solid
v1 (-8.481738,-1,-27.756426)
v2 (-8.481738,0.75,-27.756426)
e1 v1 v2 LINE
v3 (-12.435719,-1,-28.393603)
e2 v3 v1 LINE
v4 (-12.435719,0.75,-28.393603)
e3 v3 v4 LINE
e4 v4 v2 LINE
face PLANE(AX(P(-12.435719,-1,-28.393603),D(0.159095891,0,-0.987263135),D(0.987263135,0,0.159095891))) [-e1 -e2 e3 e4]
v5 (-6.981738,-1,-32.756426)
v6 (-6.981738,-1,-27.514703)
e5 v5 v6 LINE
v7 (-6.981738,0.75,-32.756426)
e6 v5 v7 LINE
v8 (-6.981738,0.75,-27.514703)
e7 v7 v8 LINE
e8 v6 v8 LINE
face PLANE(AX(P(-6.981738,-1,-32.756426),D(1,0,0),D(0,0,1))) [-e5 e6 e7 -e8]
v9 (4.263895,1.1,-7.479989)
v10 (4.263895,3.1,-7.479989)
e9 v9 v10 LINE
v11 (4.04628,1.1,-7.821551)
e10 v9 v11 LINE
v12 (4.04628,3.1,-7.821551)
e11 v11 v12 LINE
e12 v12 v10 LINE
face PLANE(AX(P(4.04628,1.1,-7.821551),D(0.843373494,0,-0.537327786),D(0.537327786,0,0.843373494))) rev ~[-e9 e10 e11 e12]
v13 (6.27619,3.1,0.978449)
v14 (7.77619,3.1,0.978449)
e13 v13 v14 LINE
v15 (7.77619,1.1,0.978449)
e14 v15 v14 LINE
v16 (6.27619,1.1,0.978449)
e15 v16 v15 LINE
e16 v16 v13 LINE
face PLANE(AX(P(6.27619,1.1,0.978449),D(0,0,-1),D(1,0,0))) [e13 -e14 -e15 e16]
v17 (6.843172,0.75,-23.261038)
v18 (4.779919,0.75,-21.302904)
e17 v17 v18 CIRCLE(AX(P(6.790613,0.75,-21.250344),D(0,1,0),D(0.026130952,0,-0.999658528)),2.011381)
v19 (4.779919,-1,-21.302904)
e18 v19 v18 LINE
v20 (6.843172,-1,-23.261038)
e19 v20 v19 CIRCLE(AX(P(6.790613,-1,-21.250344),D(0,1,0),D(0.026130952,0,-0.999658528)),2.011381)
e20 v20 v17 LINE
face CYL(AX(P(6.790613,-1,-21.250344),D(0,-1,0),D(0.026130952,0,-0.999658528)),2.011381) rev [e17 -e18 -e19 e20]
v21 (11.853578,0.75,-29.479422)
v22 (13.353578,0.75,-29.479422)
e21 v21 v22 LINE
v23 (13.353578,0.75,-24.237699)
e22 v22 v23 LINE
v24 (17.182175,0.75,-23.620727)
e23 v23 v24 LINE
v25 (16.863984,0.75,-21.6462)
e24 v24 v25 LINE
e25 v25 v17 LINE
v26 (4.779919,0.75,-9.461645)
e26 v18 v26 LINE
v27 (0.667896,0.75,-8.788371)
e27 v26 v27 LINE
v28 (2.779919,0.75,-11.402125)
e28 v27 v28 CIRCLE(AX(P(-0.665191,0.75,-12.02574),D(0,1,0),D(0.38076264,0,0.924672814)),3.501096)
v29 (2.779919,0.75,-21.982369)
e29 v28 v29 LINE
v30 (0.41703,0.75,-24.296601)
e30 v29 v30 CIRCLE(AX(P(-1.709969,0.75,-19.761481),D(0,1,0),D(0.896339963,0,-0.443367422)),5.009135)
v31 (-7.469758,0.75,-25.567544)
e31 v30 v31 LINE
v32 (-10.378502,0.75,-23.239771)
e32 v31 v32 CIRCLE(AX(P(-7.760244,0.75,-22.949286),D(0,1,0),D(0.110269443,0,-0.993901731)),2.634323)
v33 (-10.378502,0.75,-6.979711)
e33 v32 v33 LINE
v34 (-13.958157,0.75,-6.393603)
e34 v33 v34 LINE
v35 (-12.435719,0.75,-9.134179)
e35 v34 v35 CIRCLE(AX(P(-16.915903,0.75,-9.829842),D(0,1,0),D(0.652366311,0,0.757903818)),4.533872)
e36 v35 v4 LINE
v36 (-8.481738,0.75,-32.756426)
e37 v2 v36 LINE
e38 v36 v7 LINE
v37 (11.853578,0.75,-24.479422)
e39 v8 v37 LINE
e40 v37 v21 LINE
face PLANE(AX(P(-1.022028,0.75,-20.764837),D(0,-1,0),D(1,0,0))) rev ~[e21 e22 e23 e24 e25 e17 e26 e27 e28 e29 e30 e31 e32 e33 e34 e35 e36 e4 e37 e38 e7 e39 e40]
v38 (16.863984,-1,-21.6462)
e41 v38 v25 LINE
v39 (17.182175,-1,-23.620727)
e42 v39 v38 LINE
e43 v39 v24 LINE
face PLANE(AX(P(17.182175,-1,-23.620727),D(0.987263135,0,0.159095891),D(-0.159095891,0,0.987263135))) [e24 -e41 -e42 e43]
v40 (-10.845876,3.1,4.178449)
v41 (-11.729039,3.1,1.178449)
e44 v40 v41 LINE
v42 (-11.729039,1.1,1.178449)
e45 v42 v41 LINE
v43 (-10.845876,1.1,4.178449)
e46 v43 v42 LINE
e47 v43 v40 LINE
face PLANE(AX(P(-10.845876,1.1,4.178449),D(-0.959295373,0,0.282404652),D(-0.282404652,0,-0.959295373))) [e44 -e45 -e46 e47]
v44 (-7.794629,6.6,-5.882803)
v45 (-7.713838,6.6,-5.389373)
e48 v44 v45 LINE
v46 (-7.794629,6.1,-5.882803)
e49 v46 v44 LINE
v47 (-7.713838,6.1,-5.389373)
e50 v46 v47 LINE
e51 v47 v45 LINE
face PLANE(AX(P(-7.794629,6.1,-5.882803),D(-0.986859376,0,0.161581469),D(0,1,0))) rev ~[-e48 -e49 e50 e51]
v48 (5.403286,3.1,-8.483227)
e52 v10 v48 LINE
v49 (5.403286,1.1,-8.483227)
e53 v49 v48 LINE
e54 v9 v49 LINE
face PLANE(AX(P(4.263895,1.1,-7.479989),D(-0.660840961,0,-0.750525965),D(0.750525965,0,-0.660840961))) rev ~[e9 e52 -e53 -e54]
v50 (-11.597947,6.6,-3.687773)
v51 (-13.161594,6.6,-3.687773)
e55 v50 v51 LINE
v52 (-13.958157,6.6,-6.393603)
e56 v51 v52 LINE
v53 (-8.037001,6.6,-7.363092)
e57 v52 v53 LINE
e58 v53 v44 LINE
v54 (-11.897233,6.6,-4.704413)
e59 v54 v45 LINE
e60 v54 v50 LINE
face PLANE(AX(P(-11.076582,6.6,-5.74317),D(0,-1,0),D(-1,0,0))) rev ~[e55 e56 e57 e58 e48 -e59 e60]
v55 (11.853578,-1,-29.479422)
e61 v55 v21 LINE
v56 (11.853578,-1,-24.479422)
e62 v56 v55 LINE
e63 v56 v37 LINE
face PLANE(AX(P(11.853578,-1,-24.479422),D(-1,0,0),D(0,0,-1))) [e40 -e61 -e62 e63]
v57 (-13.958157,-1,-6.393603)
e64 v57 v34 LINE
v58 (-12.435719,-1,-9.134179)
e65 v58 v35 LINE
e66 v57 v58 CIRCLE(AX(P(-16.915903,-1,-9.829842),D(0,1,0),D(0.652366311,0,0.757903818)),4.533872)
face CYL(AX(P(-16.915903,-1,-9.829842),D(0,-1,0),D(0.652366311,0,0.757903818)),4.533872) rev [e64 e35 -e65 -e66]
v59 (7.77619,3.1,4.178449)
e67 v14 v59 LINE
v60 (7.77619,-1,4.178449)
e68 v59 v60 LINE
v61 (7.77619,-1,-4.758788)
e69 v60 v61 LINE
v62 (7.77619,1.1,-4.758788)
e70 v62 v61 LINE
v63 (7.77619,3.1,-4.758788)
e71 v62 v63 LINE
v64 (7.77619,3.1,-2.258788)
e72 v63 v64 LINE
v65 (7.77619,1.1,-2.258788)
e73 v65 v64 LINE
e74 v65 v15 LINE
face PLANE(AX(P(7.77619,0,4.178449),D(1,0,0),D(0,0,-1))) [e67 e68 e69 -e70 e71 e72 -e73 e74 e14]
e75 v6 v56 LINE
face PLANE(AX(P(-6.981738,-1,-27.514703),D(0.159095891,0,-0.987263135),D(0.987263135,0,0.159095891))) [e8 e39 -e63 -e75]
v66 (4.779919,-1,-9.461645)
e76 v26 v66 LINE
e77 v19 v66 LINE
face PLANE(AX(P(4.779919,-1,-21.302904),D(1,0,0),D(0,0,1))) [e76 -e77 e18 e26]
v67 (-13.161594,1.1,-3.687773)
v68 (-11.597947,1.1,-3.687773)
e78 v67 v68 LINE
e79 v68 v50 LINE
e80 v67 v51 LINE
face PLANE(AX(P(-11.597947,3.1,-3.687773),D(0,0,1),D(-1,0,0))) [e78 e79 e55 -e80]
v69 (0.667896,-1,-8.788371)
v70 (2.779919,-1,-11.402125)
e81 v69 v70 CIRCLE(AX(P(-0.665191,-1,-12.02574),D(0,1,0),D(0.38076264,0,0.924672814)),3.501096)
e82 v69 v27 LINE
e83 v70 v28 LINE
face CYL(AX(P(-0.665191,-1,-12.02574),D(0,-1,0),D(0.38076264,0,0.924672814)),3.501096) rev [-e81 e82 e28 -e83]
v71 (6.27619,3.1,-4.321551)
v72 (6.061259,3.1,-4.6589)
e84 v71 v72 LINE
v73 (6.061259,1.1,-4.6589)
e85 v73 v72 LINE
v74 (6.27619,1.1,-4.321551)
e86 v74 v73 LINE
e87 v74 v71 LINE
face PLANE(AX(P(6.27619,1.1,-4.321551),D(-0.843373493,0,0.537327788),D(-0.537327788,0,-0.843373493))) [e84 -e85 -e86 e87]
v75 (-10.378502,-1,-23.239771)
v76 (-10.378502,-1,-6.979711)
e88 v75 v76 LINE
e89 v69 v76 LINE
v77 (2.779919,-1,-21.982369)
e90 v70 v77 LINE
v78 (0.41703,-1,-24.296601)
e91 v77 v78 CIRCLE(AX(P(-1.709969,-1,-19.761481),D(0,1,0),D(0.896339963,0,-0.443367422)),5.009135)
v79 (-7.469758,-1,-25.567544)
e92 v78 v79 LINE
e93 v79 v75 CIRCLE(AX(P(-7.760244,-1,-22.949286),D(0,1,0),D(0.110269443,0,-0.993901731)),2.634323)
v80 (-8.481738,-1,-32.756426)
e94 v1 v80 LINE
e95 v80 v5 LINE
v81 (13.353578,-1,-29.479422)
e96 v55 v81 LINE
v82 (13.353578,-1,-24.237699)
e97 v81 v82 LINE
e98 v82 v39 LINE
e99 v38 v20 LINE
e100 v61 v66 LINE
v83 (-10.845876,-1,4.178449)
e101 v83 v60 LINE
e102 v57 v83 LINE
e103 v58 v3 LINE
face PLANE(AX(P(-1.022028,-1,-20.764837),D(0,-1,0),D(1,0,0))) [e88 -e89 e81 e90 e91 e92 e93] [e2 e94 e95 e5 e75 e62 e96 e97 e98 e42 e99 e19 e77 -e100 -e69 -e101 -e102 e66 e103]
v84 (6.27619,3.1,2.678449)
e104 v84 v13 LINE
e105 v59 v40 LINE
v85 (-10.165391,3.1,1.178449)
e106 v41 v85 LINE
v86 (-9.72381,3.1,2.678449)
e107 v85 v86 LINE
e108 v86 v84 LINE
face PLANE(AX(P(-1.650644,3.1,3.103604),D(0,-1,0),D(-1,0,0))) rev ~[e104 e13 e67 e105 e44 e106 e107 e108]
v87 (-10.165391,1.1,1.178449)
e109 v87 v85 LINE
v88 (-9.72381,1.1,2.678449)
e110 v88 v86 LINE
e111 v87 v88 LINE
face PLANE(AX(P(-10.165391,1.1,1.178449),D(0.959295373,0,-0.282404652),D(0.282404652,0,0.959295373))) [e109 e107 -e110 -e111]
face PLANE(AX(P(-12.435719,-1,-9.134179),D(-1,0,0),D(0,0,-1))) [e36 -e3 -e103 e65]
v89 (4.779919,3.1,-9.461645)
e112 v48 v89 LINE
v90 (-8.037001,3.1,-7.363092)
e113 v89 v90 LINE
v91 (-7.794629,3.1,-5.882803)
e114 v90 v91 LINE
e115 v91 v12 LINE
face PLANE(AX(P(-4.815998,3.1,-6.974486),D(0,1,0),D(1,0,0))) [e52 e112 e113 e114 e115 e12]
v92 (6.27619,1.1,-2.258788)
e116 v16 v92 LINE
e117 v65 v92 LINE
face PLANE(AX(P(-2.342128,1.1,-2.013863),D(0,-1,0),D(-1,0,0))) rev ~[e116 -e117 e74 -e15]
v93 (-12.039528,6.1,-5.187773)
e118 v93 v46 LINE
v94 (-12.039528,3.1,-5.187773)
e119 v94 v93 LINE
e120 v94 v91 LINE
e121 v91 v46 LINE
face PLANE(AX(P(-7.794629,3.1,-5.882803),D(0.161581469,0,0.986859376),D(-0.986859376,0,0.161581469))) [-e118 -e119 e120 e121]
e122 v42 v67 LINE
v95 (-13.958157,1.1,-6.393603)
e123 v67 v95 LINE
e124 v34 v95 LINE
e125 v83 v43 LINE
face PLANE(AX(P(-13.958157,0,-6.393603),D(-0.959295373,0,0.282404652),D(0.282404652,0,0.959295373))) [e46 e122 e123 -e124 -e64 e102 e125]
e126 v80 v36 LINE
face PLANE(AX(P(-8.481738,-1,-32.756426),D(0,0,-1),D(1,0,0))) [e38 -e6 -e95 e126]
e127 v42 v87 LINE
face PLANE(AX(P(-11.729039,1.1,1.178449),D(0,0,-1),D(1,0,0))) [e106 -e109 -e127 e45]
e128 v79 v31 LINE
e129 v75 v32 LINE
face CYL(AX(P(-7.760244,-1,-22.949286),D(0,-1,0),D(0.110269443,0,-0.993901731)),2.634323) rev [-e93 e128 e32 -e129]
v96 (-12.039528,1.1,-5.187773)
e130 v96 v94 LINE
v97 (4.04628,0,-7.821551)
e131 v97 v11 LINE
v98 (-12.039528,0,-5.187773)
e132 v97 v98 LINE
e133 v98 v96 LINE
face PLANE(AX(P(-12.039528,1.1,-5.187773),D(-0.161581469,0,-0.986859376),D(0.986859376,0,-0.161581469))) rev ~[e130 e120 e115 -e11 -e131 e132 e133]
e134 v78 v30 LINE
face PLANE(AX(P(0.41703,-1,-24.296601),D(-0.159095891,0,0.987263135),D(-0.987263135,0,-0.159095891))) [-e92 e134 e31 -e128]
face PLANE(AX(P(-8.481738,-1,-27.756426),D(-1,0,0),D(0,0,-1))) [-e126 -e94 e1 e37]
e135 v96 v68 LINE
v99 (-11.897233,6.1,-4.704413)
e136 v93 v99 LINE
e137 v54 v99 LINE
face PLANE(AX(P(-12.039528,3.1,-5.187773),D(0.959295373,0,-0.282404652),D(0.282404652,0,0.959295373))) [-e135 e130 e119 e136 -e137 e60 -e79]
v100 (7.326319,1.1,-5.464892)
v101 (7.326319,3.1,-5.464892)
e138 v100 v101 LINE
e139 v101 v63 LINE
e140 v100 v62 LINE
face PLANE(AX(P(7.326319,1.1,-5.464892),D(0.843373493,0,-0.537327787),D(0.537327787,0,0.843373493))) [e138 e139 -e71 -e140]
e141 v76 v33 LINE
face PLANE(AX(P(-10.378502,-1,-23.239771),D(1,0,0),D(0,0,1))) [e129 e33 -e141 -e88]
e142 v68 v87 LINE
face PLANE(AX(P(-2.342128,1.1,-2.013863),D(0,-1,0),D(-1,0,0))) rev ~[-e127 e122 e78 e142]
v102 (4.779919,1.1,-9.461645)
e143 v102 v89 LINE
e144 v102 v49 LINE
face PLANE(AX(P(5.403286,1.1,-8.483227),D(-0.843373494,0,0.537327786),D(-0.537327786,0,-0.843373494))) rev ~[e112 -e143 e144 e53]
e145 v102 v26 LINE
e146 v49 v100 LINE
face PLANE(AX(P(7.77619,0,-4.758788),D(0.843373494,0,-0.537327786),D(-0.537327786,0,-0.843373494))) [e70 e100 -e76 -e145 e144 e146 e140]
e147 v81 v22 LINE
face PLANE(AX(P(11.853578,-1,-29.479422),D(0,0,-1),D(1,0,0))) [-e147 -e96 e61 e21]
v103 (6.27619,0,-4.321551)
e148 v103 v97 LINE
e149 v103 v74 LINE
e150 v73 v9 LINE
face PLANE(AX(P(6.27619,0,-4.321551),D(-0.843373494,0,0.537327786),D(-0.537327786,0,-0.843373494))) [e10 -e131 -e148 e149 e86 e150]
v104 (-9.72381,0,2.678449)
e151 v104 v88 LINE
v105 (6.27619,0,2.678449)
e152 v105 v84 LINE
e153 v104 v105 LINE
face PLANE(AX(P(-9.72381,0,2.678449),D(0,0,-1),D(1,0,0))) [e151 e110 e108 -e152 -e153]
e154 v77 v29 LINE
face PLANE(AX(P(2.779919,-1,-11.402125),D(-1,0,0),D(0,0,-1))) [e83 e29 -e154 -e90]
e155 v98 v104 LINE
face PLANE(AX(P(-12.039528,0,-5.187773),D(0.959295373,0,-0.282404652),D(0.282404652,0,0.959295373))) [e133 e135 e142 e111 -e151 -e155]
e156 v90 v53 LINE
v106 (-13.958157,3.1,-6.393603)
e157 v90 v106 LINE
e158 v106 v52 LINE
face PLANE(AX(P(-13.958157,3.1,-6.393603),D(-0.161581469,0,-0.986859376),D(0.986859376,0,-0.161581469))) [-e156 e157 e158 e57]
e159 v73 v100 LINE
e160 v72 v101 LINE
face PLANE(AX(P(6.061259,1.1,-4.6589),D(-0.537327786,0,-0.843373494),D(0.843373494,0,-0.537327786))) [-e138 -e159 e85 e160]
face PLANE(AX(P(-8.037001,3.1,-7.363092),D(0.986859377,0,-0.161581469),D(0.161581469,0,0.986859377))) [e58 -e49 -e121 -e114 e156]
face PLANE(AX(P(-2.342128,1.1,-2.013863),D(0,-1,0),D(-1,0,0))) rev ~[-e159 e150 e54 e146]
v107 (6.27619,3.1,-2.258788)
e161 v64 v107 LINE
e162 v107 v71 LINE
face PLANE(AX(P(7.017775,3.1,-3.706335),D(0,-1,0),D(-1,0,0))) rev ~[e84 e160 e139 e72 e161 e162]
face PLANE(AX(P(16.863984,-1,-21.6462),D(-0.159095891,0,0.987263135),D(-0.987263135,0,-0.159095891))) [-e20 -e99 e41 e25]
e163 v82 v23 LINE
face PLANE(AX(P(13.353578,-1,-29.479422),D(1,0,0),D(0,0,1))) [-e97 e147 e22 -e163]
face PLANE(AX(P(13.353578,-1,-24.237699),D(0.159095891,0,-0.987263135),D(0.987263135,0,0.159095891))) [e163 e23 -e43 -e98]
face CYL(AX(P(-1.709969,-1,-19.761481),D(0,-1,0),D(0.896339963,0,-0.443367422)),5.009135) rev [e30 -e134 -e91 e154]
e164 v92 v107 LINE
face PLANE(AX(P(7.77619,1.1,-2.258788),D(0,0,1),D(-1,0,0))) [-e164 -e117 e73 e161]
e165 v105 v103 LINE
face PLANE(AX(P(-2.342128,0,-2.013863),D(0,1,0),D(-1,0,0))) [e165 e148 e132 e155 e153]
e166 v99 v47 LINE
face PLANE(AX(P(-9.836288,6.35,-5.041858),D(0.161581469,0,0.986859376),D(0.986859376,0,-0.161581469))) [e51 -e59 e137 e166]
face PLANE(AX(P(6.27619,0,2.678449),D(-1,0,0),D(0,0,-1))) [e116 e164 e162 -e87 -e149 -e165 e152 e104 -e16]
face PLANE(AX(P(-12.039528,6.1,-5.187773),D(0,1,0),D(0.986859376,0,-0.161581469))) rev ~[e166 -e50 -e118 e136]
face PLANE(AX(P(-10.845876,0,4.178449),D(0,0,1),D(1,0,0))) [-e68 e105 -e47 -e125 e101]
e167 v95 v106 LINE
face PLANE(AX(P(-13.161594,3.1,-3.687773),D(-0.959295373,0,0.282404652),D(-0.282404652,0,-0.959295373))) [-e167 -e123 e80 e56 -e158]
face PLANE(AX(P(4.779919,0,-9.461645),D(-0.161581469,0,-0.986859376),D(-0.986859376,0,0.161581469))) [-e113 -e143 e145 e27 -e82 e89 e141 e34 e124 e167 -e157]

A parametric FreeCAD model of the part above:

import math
import FreeCAD as App
import Part
import Sketcher
Q = App.Units.Quantity

doc = App.newDocument("Part")
params = doc.addObject("Spreadsheet::Sheet", "Params")
for row, (alias, value) in enumerate([
    ("sketch1_width", "16 mm"),
    ("sketch1_height", "7 mm"),
    ("sketch1_length", "16.3 mm"),
    ("sketch1_length2", "8.2 mm"),
    ("sketch1_length3", "4.15 mm"),
    ("pad1_length", "1.1 mm"),
    ("sketch2_width", "16 mm"),
    ("sketch2_width2", "1.5 mm"),
    ("sketch2_width3", "1.5 mm"),
    ("sketch2_height", "1.7 mm"),
    ("sketch2_height2", "3.2 mm"),
    ("pad2_length", "2 mm"),
    ("pad3_length", "1 mm"),
    ("sketch4_length", "6 mm"),
    ("sketch4_length2", "1.5 mm"),
    ("pad4_length", "3.5 mm"),
    ("sketch5_height", "0.5 mm"),
    ("pad5_length", "0.5 mm"),
    ("sketch6_height", "5 mm"),
    ("sketch6_length", "2 mm"),
    ("sketch6_width", "1.5 mm"),
    ("pad6_length", "1.75 mm"),
], start=1):
    params.set(f"A{row}", alias)
    params.set(f"B{row}", "=" + value)
    params.setAlias(f"B{row}", alias)

body = doc.addObject("PartDesign::Body", "Body")

# Sketch on XZ plane
sketch1 = doc.addObject("Sketcher::SketchObject", "Sketch")
body.addObject(sketch1)
sketch1.AttachmentSupport = (doc.XZ_Plane, [""])
sketch1.MapMode = "FlatFace"
sketch1.addGeometry(Part.LineSegment(App.Vector(4.8, -9.5, 0), App.Vector(-14, -6.4, 0)), False)
sketch1.addGeometry(Part.LineSegment(App.Vector(-14, -6.4, 0), App.Vector(-10.8, 4.2, 0)), False)
sketch1.addGeometry(Part.LineSegment(App.Vector(-10.8, 4.2, 0), App.Vector(7.8, 4.2, 0)), False)
sketch1.addGeometry(Part.LineSegment(App.Vector(7.8, 4.2, 0), App.Vector(7.8, -4.8, 0)), False)
sketch1.addGeometry(Part.LineSegment(App.Vector(7.8, -4.8, 0), App.Vector(4.8, -9.5, 0)), False)
sketch1.addGeometry(Part.LineSegment(App.Vector(-12, -5.2, 0), App.Vector(4, -7.8, 0)), False)
sketch1.addGeometry(Part.LineSegment(App.Vector(4, -7.8, 0), App.Vector(6.3, -4.3, 0)), False)
sketch1.addGeometry(Part.LineSegment(App.Vector(6.3, -4.3, 0), App.Vector(6.3, 2.7, 0)), False)
sketch1.addGeometry(Part.LineSegment(App.Vector(6.3, 2.7, 0), App.Vector(-9.7, 2.7, 0)), False)
sketch1.addGeometry(Part.LineSegment(App.Vector(-9.7, 2.7, 0), App.Vector(-12, -5.2, 0)), False)
sketch1.addConstraint(Sketcher.Constraint("Coincident", 0, 2, 1, 1))
sketch1.addConstraint(Sketcher.Constraint("Coincident", 1, 2, 2, 1))
sketch1.addConstraint(Sketcher.Constraint("Coincident", 2, 2, 3, 1))
sketch1.addConstraint(Sketcher.Constraint("Coincident", 3, 2, 4, 1))
sketch1.addConstraint(Sketcher.Constraint("Coincident", 4, 2, 0, 1))
sketch1.addConstraint(Sketcher.Constraint("Coincident", 5, 2, 6, 1))
sketch1.addConstraint(Sketcher.Constraint("Coincident", 6, 2, 7, 1))
sketch1.addConstraint(Sketcher.Constraint("Coincident", 7, 2, 8, 1))
sketch1.addConstraint(Sketcher.Constraint("Coincident", 8, 2, 9, 1))
sketch1.addConstraint(Sketcher.Constraint("Coincident", 9, 2, 5, 1))
sketch1.addConstraint(Sketcher.Constraint("Horizontal", 2))
sketch1.addConstraint(Sketcher.Constraint("Vertical", 3))
sketch1.addConstraint(Sketcher.Constraint("Vertical", 7))
sketch1.addConstraint(Sketcher.Constraint("Horizontal", 8))
sketch1.addConstraint(Sketcher.Constraint("Parallel", 0, 5))
sketch1.addConstraint(Sketcher.Constraint("Parallel", 4, 6))
sketch1.addConstraint(Sketcher.Constraint("Parallel", 1, 9))
sketch1.addConstraint(Sketcher.Constraint("DistanceX", 8, 2, 8, 1, Q("16 mm")))
sketch1.addConstraint(Sketcher.Constraint("DistanceY", 7, 1, 7, 2, Q("7 mm")))
sketch1.addConstraint(Sketcher.Constraint("DistanceY", 5, 2, 2, 2, Q("12 mm")))
sketch1.addConstraint(Sketcher.Constraint("Distance", 5, Q("16.3 mm")))
sketch1.addConstraint(Sketcher.Constraint("Distance", 9, Q("8.2 mm")))
sketch1.addConstraint(Sketcher.Constraint("DistanceX", 6, 2, 3, 2, Q("1.5 mm")))
sketch1.addConstraint(Sketcher.Constraint("DistanceY", 5, 2, 6, 2, Q("3.5 mm")))
sketch1.addConstraint(Sketcher.Constraint("Distance", 6, Q("4.15 mm")))
sketch1.addConstraint(Sketcher.Constraint("DistanceX", 2, 1, 2, 2, Q("18.622066 mm")))
sketch1.addConstraint(Sketcher.Constraint("DistanceY", 3, 2, 3, 1, Q("8.937237 mm")))
sketch1.addConstraint(Sketcher.Constraint("DistanceY", -1, 1, 1, 2, Q("4.178449 mm")))
sketch1.addConstraint(Sketcher.Constraint("DistanceX", -1, 1, 2, 2, Q("7.77619 mm")))
sketch1.addConstraint(Sketcher.Constraint("DistanceX", -1, 1, 4, 2, Q("4.779919 mm")))
sketch1.setExpression("Constraints[17]", "Params.sketch1_width")
sketch1.setExpression("Constraints[18]", "Params.sketch1_height")
sketch1.setExpression("Constraints[20]", "Params.sketch1_length")
sketch1.setExpression("Constraints[21]", "Params.sketch1_length2")
sketch1.setExpression("Constraints[24]", "Params.sketch1_length3")
pad1 = doc.addObject("PartDesign::Pad", "Pad")
body.addObject(pad1)
pad1.Profile = sketch1
pad1.setExpression("Length", "Params.pad1_length")
pad1.Reversed = True

# Sketch on XZ plane
sketch2 = doc.addObject("Sketcher::SketchObject", "Sketch001")
body.addObject(sketch2)
sketch2.AttachmentSupport = (doc.XZ_Plane, [""])
sketch2.MapMode = "FlatFace"
sketch2.AttachmentOffset = App.Placement(App.Vector(0, 0, -1.1), App.Rotation())
sketch2.addGeometry(Part.LineSegment(App.Vector(4.263895, -7.479989, 0), App.Vector(5.403286, -8.483227, 0)), False)
sketch2.addGeometry(Part.LineSegment(App.Vector(5.403286, -8.483227, 0), App.Vector(4.779919, -9.461645, 0)), False)
sketch2.addGeometry(Part.LineSegment(App.Vector(4.779919, -9.461645, 0), App.Vector(-13.958157, -6.393603, 0)), False)
sketch2.addGeometry(Part.LineSegment(App.Vector(-13.958157, -6.393603, 0), App.Vector(-13.161594, -3.687773, 0)), False)
sketch2.addGeometry(Part.LineSegment(App.Vector(-13.161594, -3.687773, 0), App.Vector(-11.597947, -3.687773, 0)), False)
sketch2.addGeometry(Part.LineSegment(App.Vector(-11.597947, -3.687773, 0), App.Vector(-12.039528, -5.187773, 0)), False)
sketch2.addGeometry(Part.LineSegment(App.Vector(-12.039528, -5.187773, 0), App.Vector(4.04628, -7.821551, 0)), False)
sketch2.addGeometry(Part.LineSegment(App.Vector(4.04628, -7.821551, 0), App.Vector(4.263895, -7.479989, 0)), False)
sketch2.addGeometry(Part.LineSegment(App.Vector(7.77619, 0.978449, 0), App.Vector(6.27619, 0.978449, 0)), False)
sketch2.addGeometry(Part.LineSegment(App.Vector(6.27619, 0.978449, 0), App.Vector(6.27619, 2.678449, 0)), False)
sketch2.addGeometry(Part.LineSegment(App.Vector(6.27619, 2.678449, 0), App.Vector(-9.72381, 2.678449, 0)), False)
sketch2.addGeometry(Part.LineSegment(App.Vector(-9.72381, 2.678449, 0), App.Vector(-10.165391, 1.178449, 0)), False)
sketch2.addGeometry(Part.LineSegment(App.Vector(-10.165391, 1.178449, 0), App.Vector(-11.729039, 1.178449, 0)), False)
sketch2.addGeometry(Part.LineSegment(App.Vector(-11.729039, 1.178449, 0), App.Vector(-10.845876, 4.178449, 0)), False)
sketch2.addGeometry(Part.LineSegment(App.Vector(-10.845876, 4.178449, 0), App.Vector(7.77619, 4.178449, 0)), False)
sketch2.addGeometry(Part.LineSegment(App.Vector(7.77619, 4.178449, 0), App.Vector(7.77619, 0.978449, 0)), False)
sketch2.addGeometry(Part.LineSegment(App.Vector(6.27619, -4.321551, 0), App.Vector(6.27619, -2.258788, 0)), False)
sketch2.addGeometry(Part.LineSegment(App.Vector(6.27619, -2.258788, 0), App.Vector(7.77619, -2.258788, 0)), False)
sketch2.addGeometry(Part.LineSegment(App.Vector(7.77619, -2.258788, 0), App.Vector(7.77619, -4.758788, 0)), False)
sketch2.addGeometry(Part.LineSegment(App.Vector(7.77619, -4.758788, 0), App.Vector(7.326319, -5.464892, 0)), False)
sketch2.addGeometry(Part.LineSegment(App.Vector(7.326319, -5.464892, 0), App.Vector(6.061259, -4.6589, 0)), False)
sketch2.addGeometry(Part.LineSegment(App.Vector(6.061259, -4.6589, 0), App.Vector(6.27619, -4.321551, 0)), False)
sketch2.addConstraint(Sketcher.Constraint("Coincident", 0, 2, 1, 1))
sketch2.addConstraint(Sketcher.Constraint("Coincident", 1, 2, 2, 1))
sketch2.addConstraint(Sketcher.Constraint("Coincident", 2, 2, 3, 1))
sketch2.addConstraint(Sketcher.Constraint("Coincident", 3, 2, 4, 1))
sketch2.addConstraint(Sketcher.Constraint("Coincident", 4, 2, 5, 1))
sketch2.addConstraint(Sketcher.Constraint("Coincident", 5, 2, 6, 1))
sketch2.addConstraint(Sketcher.Constraint("Coincident", 6, 2, 7, 1))
sketch2.addConstraint(Sketcher.Constraint("Coincident", 7, 2, 0, 1))
sketch2.addConstraint(Sketcher.Constraint("Coincident", 8, 2, 9, 1))
sketch2.addConstraint(Sketcher.Constraint("Coincident", 9, 2, 10, 1))
sketch2.addConstraint(Sketcher.Constraint("Coincident", 10, 2, 11, 1))
sketch2.addConstraint(Sketcher.Constraint("Coincident", 11, 2, 12, 1))
sketch2.addConstraint(Sketcher.Constraint("Coincident", 12, 2, 13, 1))
sketch2.addConstraint(Sketcher.Constraint("Coincident", 13, 2, 14, 1))
sketch2.addConstraint(Sketcher.Constraint("Coincident", 14, 2, 15, 1))
sketch2.addConstraint(Sketcher.Constraint("Coincident", 15, 2, 8, 1))
sketch2.addConstraint(Sketcher.Constraint("Coincident", 16, 2, 17, 1))
sketch2.addConstraint(Sketcher.Constraint("Coincident", 17, 2, 18, 1))
sketch2.addConstraint(Sketcher.Constraint("Coincident", 18, 2, 19, 1))
sketch2.addConstraint(Sketcher.Constraint("Coincident", 19, 2, 20, 1))
sketch2.addConstraint(Sketcher.Constraint("Coincident", 20, 2, 21, 1))
sketch2.addConstraint(Sketcher.Constraint("Coincident", 21, 2, 16, 1))
sketch2.addConstraint(Sketcher.Constraint("Horizontal", 4))
sketch2.addConstraint(Sketcher.Constraint("Horizontal", 8))
sketch2.addConstraint(Sketcher.Constraint("Vertical", 9))
sketch2.addConstraint(Sketcher.Constraint("Horizontal", 10))
sketch2.addConstraint(Sketcher.Constraint("Horizontal", 12))
sketch2.addConstraint(Sketcher.Constraint("Horizontal", 14))
sketch2.addConstraint(Sketcher.Constraint("Vertical", 15))
sketch2.addConstraint(Sketcher.Constraint("Vertical", 16))
sketch2.addConstraint(Sketcher.Constraint("Horizontal", 17))
sketch2.addConstraint(Sketcher.Constraint("Vertical", 18))
sketch2.addConstraint(Sketcher.Constraint("DistanceX", 10, 2, 10, 1, Q("16 mm")))
sketch2.addConstraint(Sketcher.Constraint("DistanceX", 8, 2, 8, 1, Q("1.5 mm")))
sketch2.addConstraint(Sketcher.Constraint("DistanceX", 17, 1, 17, 2, Q("1.5 mm")))
sketch2.addConstraint(Sketcher.Constraint("DistanceY", 9, 1, 9, 2, Q("1.7 mm")))
sketch2.addConstraint(Sketcher.Constraint("DistanceY", 15, 2, 15, 1, Q("3.2 mm")))
sketch2.addConstraint(Sketcher.Constraint("DistanceY", 18, 2, 18, 1, Q("2.5 mm")))
sketch2.addConstraint(Sketcher.Constraint("DistanceY", 11, 2, 13, 2, Q("3 mm")))
sketch2.addConstraint(Sketcher.Constraint("DistanceY", 6, 2, 14, 2, Q("12 mm")))
sketch2.addConstraint(Sketcher.Constraint("Distance", 6, Q("16.3 mm")))
sketch2.addConstraint(Sketcher.Constraint("Distance", 20, Q("1.5 mm")))
sketch2.addConstraint(Sketcher.Constraint("Distance", 21, Q("0.4 mm")))
sketch2.addConstraint(Sketcher.Constraint("DistanceY", 5, 2, 4, 2, Q("1.5 mm")))
sketch2.addConstraint(Sketcher.Constraint("DistanceX", 16, 2, 15, 2, Q("1.5 mm")))
sketch2.addConstraint(Sketcher.Constraint("DistanceY", 20, 2, -1, 1, Q("4.6589 mm")))
sketch2.addConstraint(Sketcher.Constraint("DistanceY", 7, 2, 16, 2, Q("5.2212 mm")))
sketch2.addConstraint(Sketcher.Constraint("DistanceX", 4, 1, 4, 2, Q("1.563648 mm")))
sketch2.addConstraint(Sketcher.Constraint("DistanceX", 12, 2, 12, 1, Q("1.563648 mm")))
sketch2.addConstraint(Sketcher.Constraint("DistanceX", 14, 1, 14, 2, Q("18.622066 mm")))
sketch2.addConstraint(Sketcher.Constraint("DistanceY", 16, 1, 16, 2, Q("2.062763 mm")))
sketch2.addConstraint(Sketcher.Constraint("DistanceX", -1, 1, 1, 2, Q("4.779919 mm")))
sketch2.addConstraint(Sketcher.Constraint("DistanceX", 5, 2, -1, 1, Q("12.039528 mm")))
sketch2.addConstraint(Sketcher.Constraint("DistanceX", -1, 1, 6, 2, Q("4.04628 mm")))
sketch2.addConstraint(Sketcher.Constraint("DistanceY", 6, 2, -1, 1, Q("7.821551 mm")))
sketch2.addConstraint(Sketcher.Constraint("DistanceY", 7, 2, -1, 1, Q("7.479989 mm")))
sketch2.addConstraint(Sketcher.Constraint("DistanceX", -1, 1, 8, 2, Q("6.27619 mm")))
sketch2.addConstraint(Sketcher.Constraint("DistanceX", 11, 2, -1, 1, Q("10.165391 mm")))
sketch2.addConstraint(Sketcher.Constraint("DistanceX", -1, 1, 19, 2, Q("7.326319 mm")))
sketch2.addConstraint(Sketcher.Constraint("DistanceY", 1, 2, 0, 2, Q("0.978418 mm")))
sketch2.addConstraint(Sketcher.Constraint("DistanceY", 1, 2, 2, 2, Q("3.068042 mm")))
sketch2.addConstraint(Sketcher.Constraint("DistanceY", 2, 2, 3, 2, Q("2.70583 mm")))
sketch2.addConstraint(Sketcher.Constraint("DistanceX", 3, 2, 0, 2, Q("18.56488 mm")))
sketch2.addConstraint(Sketcher.Constraint("DistanceX", 2, 2, 4, 2, Q("2.360211 mm")))
sketch2.addConstraint(Sketcher.Constraint("DistanceX", 5, 2, 4, 2, Q("0.441581 mm")))
sketch2.addConstraint(Sketcher.Constraint("DistanceX", 7, 2, 0, 2, Q("1.139391 mm")))
sketch2.setExpression("Constraints[32]", "Params.sketch2_width")
sketch2.setExpression("Constraints[33]", "Params.sketch2_width2")
sketch2.setExpression("Constraints[34]", "Params.sketch2_width3")
sketch2.setExpression("Constraints[35]", "Params.sketch2_height")
sketch2.setExpression("Constraints[36]", "Params.sketch2_height2")
pad2 = doc.addObject("PartDesign::Pad", "Pad001")
body.addObject(pad2)
pad2.Profile = sketch2
pad2.setExpression("Length", "Params.pad2_length")
pad2.Reversed = True

# Sketch on XZ plane
sketch3 = doc.addObject("Sketcher::SketchObject", "Sketch002")
body.addObject(sketch3)
sketch3.AttachmentSupport = (doc.XZ_Plane, [""])
sketch3.MapMode = "FlatFace"
sketch3.addGeometry(Part.LineSegment(App.Vector(-14, -6, 0), App.Vector(5, -9, 0)), False)
sketch3.addGeometry(Part.LineSegment(App.Vector(5, -9, 0), App.Vector(8, -5, 0)), False)
sketch3.addGeometry(Part.LineSegment(App.Vector(8, -5, 0), App.Vector(8, 4, 0)), False)
sketch3.addGeometry(Part.LineSegment(App.Vector(8, 4, 0), App.Vector(-11, 4, 0)), False)
sketch3.addGeometry(Part.LineSegment(App.Vector(-11, 4, 0), App.Vector(-14, -6, 0)), False)
sketch3.addConstraint(Sketcher.Constraint("Coincident", 0, 2, 1, 1))
sketch3.addConstraint(Sketcher.Constraint("Coincident", 1, 2, 2, 1))
sketch3.addConstraint(Sketcher.Constraint("Coincident", 2, 2, 3, 1))
sketch3.addConstraint(Sketcher.Constraint("Coincident", 3, 2, 4, 1))
sketch3.addConstraint(Sketcher.Constraint("Coincident", 4, 2, 0, 1))
sketch3.addConstraint(Sketcher.Constraint("Vertical", 2))
sketch3.addConstraint(Sketcher.Constraint("Horizontal", 3))
sketch3.addConstraint(Sketcher.Constraint("DistanceX", 3, 2, 3, 1, Q("18.622066 mm")))
sketch3.addConstraint(Sketcher.Constraint("DistanceY", 2, 1, 2, 2, Q("8.937237 mm")))
sketch3.addConstraint(Sketcher.Constraint("DistanceX", -1, 1, 0, 2, Q("4.779919 mm")))
sketch3.addConstraint(Sketcher.Constraint("DistanceX", -1, 1, 1, 2, Q("7.77619 mm")))
sketch3.addConstraint(Sketcher.Constraint("DistanceY", 1, 2, -1, 1, Q("4.758788 mm")))
sketch3.addConstraint(Sketcher.Constraint("DistanceX", 4, 2, 3, 2, Q("3.112281 mm")))
sketch3.addConstraint(Sketcher.Constraint("DistanceY", 0, 2, 4, 2, Q("3.068042 mm")))
sketch3.addConstraint(Sketcher.Constraint("Distance", 1, Q("5.576245 mm")))
pad3 = doc.addObject("PartDesign::Pad", "Pad002")
body.addObject(pad3)
pad3.Profile = sketch3
pad3.setExpression("Length", "Params.pad3_length")

# Sketch on XZ plane
sketch4 = doc.addObject("Sketcher::SketchObject", "Sketch003")
body.addObject(sketch4)
sketch4.AttachmentSupport = (doc.XZ_Plane, [""])
sketch4.MapMode = "FlatFace"
sketch4.AttachmentOffset = App.Placement(App.Vector(0, 0, -3.1), App.Rotation())
sketch4.addGeometry(Part.LineSegment(App.Vector(-8, -7.4, 0), App.Vector(-14, -6.4, 0)), False)
sketch4.addGeometry(Part.LineSegment(App.Vector(-14, -6.4, 0), App.Vector(-13.2, -3.7, 0)), False)
sketch4.addGeometry(Part.LineSegment(App.Vector(-13.2, -3.7, 0), App.Vector(-11.6, -3.7, 0)), False)
sketch4.addGeometry(Part.LineSegment(App.Vector(-11.6, -3.7, 0), App.Vector(-12, -5.2, 0)), False)
sketch4.addGeometry(Part.LineSegment(App.Vector(-12, -5.2, 0), App.Vector(-7.8, -5.9, 0)), False)
sketch4.addGeometry(Part.LineSegment(App.Vector(-7.8, -5.9, 0), App.Vector(-8, -7.4, 0)), False)
sketch4.addConstraint(Sketcher.Constraint("Coincident", 0, 2, 1, 1))
sketch4.addConstraint(Sketcher.Constraint("Coincident", 1, 2, 2, 1))
sketch4.addConstraint(Sketcher.Constraint("Coincident", 2, 2, 3, 1))
sketch4.addConstraint(Sketcher.Constraint("Coincident", 3, 2, 4, 1))
sketch4.addConstraint(Sketcher.Constraint("Coincident", 4, 2, 5, 1))
sketch4.addConstraint(Sketcher.Constraint("Coincident", 5, 2, 0, 1))
sketch4.addConstraint(Sketcher.Constraint("Horizontal", 2))
sketch4.addConstraint(Sketcher.Constraint("Parallel", 1, 3))
sketch4.addConstraint(Sketcher.Constraint("Parallel", 0, 4))
sketch4.addConstraint(Sketcher.Constraint("Perpendicular", 4, 5))
sketch4.addConstraint(Sketcher.Constraint("Distance", 0, Q("6 mm")))
sketch4.addConstraint(Sketcher.Constraint("Distance", 5, Q("1.5 mm")))
sketch4.addConstraint(Sketcher.Constraint("DistanceY", 3, 2, 2, 2, Q("1.5 mm")))
sketch4.addConstraint(Sketcher.Constraint("DistanceX", 5, 2, -1, 1, Q("8.037001 mm")))
sketch4.addConstraint(Sketcher.Constraint("DistanceX", 3, 2, 4, 2, Q("4.244899 mm")))
sketch4.addConstraint(Sketcher.Constraint("DistanceY", 0, 2, 4, 2, Q("0.5108 mm")))
sketch4.addConstraint(Sketcher.Constraint("DistanceX", 2, 1, 2, 2, Q("1.563648 mm")))
sketch4.addConstraint(Sketcher.Constraint("DistanceY", 0, 2, -1, 1, Q("6.393603 mm")))
sketch4.setExpression("Constraints[10]", "Params.sketch4_length")
sketch4.setExpression("Constraints[11]", "Params.sketch4_length2")
pad4 = doc.addObject("PartDesign::Pad", "Pad003")
body.addObject(pad4)
pad4.Profile = sketch4
pad4.setExpression("Length", "Params.pad4_length")
pad4.Reversed = True

# Sketch on an angled plane
sketch5 = doc.addObject("Sketcher::SketchObject", "Sketch004")
body.addObject(sketch5)
sketch5.Placement = App.Placement(App.Vector(-1.141568, 0, -6.972129), App.Rotation(App.Vector(0.986859376, 0, -0.161581469), App.Vector(0, 0.999999999, 0), App.Vector(0.161581469, 0, 0.986859376), "ZXY"))
sketch5.addGeometry(Part.LineSegment(App.Vector(-11.04, 6.6, 0), App.Vector(-11.04, 6.1, 0)), False)
sketch5.addGeometry(Part.LineSegment(App.Vector(-11.04, 6.1, 0), App.Vector(-6.74, 6.1, 0)), False)
sketch5.addGeometry(Part.LineSegment(App.Vector(-6.74, 6.1, 0), App.Vector(-6.74, 6.6, 0)), False)
sketch5.addGeometry(Part.LineSegment(App.Vector(-6.74, 6.6, 0), App.Vector(-11.04, 6.6, 0)), False)
sketch5.addConstraint(Sketcher.Constraint("Coincident", 0, 2, 1, 1))
sketch5.addConstraint(Sketcher.Constraint("Coincident", 1, 2, 2, 1))
sketch5.addConstraint(Sketcher.Constraint("Coincident", 2, 2, 3, 1))
sketch5.addConstraint(Sketcher.Constraint("Coincident", 3, 2, 0, 1))
sketch5.addConstraint(Sketcher.Constraint("Vertical", 0))
sketch5.addConstraint(Sketcher.Constraint("Horizontal", 1))
sketch5.addConstraint(Sketcher.Constraint("Vertical", 2))
sketch5.addConstraint(Sketcher.Constraint("Horizontal", 3))
sketch5.addConstraint(Sketcher.Constraint("DistanceY", 0, 2, 0, 1, Q("0.5 mm")))
sketch5.addConstraint(Sketcher.Constraint("DistanceY", -1, 1, 0, 2, Q("6.1 mm")))
sketch5.addConstraint(Sketcher.Constraint("DistanceX", 1, 1, 1, 2, Q("4.301423 mm")))
sketch5.addConstraint(Sketcher.Constraint("DistanceX", 1, 2, -1, 1, Q("6.741651 mm")))
sketch5.setExpression("Constraints[8]", "Params.sketch5_height")
pad5 = doc.addObject("PartDesign::Pad", "Pad004")
body.addObject(pad5)
pad5.Profile = sketch5
pad5.setExpression("Length", "Params.pad5_length")

# Sketch on XZ plane
sketch6 = doc.addObject("Sketcher::SketchObject", "Sketch005")
body.addObject(sketch6)
sketch6.AttachmentSupport = (doc.XZ_Plane, [""])
sketch6.MapMode = "FlatFace"
sketch6.AttachmentOffset = App.Placement(App.Vector(0, 0, 1), App.Rotation())
sketch6.addGeometry(Part.LineSegment(App.Vector(-12.4, -28.4, 0), App.Vector(-8.5, -27.8, 0)), False)
sketch6.addGeometry(Part.LineSegment(App.Vector(-8.5, -27.8, 0), App.Vector(-8.5, -32.8, 0)), False)
sketch6.addGeometry(Part.LineSegment(App.Vector(-8.5, -32.8, 0), App.Vector(-7, -32.8, 0)), False)
sketch6.addGeometry(Part.LineSegment(App.Vector(-7, -32.8, 0), App.Vector(-7, -27.5, 0)), False)
sketch6.addGeometry(Part.LineSegment(App.Vector(-7, -27.5, 0), App.Vector(11.9, -24.5, 0)), False)
sketch6.addGeometry(Part.LineSegment(App.Vector(11.9, -24.5, 0), App.Vector(11.9, -29.5, 0)), False)
sketch6.addGeometry(Part.LineSegment(App.Vector(11.9, -29.5, 0), App.Vector(13.4, -29.5, 0)), False)
sketch6.addGeometry(Part.LineSegment(App.Vector(13.4, -29.5, 0), App.Vector(13.4, -24.2, 0)), False)
sketch6.addGeometry(Part.LineSegment(App.Vector(13.4, -24.2, 0), App.Vector(17.2, -23.6, 0)), False)
sketch6.addGeometry(Part.LineSegment(App.Vector(17.2, -23.6, 0), App.Vector(16.9, -21.6, 0)), False)
sketch6.addGeometry(Part.LineSegment(App.Vector(16.9, -21.6, 0), App.Vector(6.8, -23.3, 0)), False)
sketch6.addGeometry(Part.ArcOfCircle(Part.Circle(App.Vector(6.8, -21.3, 0), App.Vector(0, 0, 1), 2), math.radians(-179), math.radians(-89)), False)
sketch6.addGeometry(Part.LineSegment(App.Vector(4.8, -21.3, 0), App.Vector(4.8, -9.5, 0)), False)
sketch6.addGeometry(Part.LineSegment(App.Vector(4.8, -9.5, 0), App.Vector(0.7, -8.8, 0)), False)
sketch6.addGeometry(Part.ArcOfCircle(Part.Circle(App.Vector(-0.7, -12, 0), App.Vector(0, 0, 1), 3.5), math.radians(10), math.radians(68)), False)
sketch6.addGeometry(Part.LineSegment(App.Vector(2.8, -11.4, 0), App.Vector(2.8, -22, 0)), False)
sketch6.addGeometry(Part.ArcOfCircle(Part.Circle(App.Vector(-1.7, -19.8, 0), App.Vector(0, 0, 1), 5), math.radians(-65), math.radians(-26)), False)
sketch6.addGeometry(Part.LineSegment(App.Vector(0.4, -24.3, 0), App.Vector(-7.5, -25.6, 0)), False)
sketch6.addGeometry(Part.ArcOfCircle(Part.Circle(App.Vector(-7.8, -22.9, 0), App.Vector(0, 0, 1), 2.6), math.radians(-174), math.radians(-84)), False)
sketch6.addGeometry(Part.LineSegment(App.Vector(-10.4, -23.2, 0), App.Vector(-10.4, -7, 0)), False)
sketch6.addGeometry(Part.LineSegment(App.Vector(-10.4, -7, 0), App.Vector(-14, -6.4, 0)), False)
sketch6.addGeometry(Part.ArcOfCircle(Part.Circle(App.Vector(-16.9, -9.8, 0), App.Vector(0, 0, 1), 4.5), math.radians(9), math.radians(49)), False)
sketch6.addGeometry(Part.LineSegment(App.Vector(-12.4, -9.1, 0), App.Vector(-12.4, -28.4, 0)), False)
sketch6.addConstraint(Sketcher.Constraint("Coincident", 0, 2, 1, 1))
sketch6.addConstraint(Sketcher.Constraint("Coincident", 1, 2, 2, 1))
sketch6.addConstraint(Sketcher.Constraint("Coincident", 2, 2, 3, 1))
sketch6.addConstraint(Sketcher.Constraint("Coincident", 3, 2, 4, 1))
sketch6.addConstraint(Sketcher.Constraint("Coincident", 4, 2, 5, 1))
sketch6.addConstraint(Sketcher.Constraint("Coincident", 5, 2, 6, 1))
sketch6.addConstraint(Sketcher.Constraint("Coincident", 6, 2, 7, 1))
sketch6.addConstraint(Sketcher.Constraint("Coincident", 7, 2, 8, 1))
sketch6.addConstraint(Sketcher.Constraint("Coincident", 8, 2, 9, 1))
sketch6.addConstraint(Sketcher.Constraint("Coincident", 9, 2, 10, 1))
sketch6.addConstraint(Sketcher.Constraint("Coincident", 10, 2, 11, 2))
sketch6.addConstraint(Sketcher.Constraint("Coincident", 11, 1, 12, 1))
sketch6.addConstraint(Sketcher.Constraint("Coincident", 12, 2, 13, 1))
sketch6.addConstraint(Sketcher.Constraint("Coincident", 13, 2, 14, 2))
sketch6.addConstraint(Sketcher.Constraint("Coincident", 14, 1, 15, 1))
sketch6.addConstraint(Sketcher.Constraint("Coincident", 15, 2, 16, 2))
sketch6.addConstraint(Sketcher.Constraint("Coincident", 16, 1, 17, 1))
sketch6.addConstraint(Sketcher.Constraint("Coincident", 17, 2, 18, 2))
sketch6.addConstraint(Sketcher.Constraint("Coincident", 18, 1, 19, 1))
sketch6.addConstraint(Sketcher.Constraint("Coincident", 19, 2, 20, 1))
sketch6.addConstraint(Sketcher.Constraint("Coincident", 20, 2, 21, 2))
sketch6.addConstraint(Sketcher.Constraint("Coincident", 21, 1, 22, 1))
sketch6.addConstraint(Sketcher.Constraint("Coincident", 22, 2, 0, 1))
sketch6.addConstraint(Sketcher.Constraint("Vertical", 1))
sketch6.addConstraint(Sketcher.Constraint("Horizontal", 2))
sketch6.addConstraint(Sketcher.Constraint("Vertical", 3))
sketch6.addConstraint(Sketcher.Constraint("Vertical", 5))
sketch6.addConstraint(Sketcher.Constraint("Horizontal", 6))
sketch6.addConstraint(Sketcher.Constraint("Vertical", 7))
sketch6.addConstraint(Sketcher.Constraint("Vertical", 12))
sketch6.addConstraint(Sketcher.Constraint("Vertical", 15))
sketch6.addConstraint(Sketcher.Constraint("Vertical", 19))
sketch6.addConstraint(Sketcher.Constraint("Vertical", 22))
sketch6.addConstraint(Sketcher.Constraint("Parallel", 0, 4))
sketch6.addConstraint(Sketcher.Constraint("Parallel", 4, 8))
sketch6.addConstraint(Sketcher.Constraint("Perpendicular", 8, 9))
sketch6.addConstraint(Sketcher.Constraint("Perpendicular", 9, 10))
sketch6.addConstraint(Sketcher.Constraint("Parallel", 10, 17))
sketch6.addConstraint(Sketcher.Constraint("Parallel", 13, 20))
sketch6.addConstraint(Sketcher.Constraint("Equal", 2, 6))
sketch6.addConstraint(Sketcher.Constraint("Equal", 1, 5))
sketch6.addConstraint(Sketcher.Constraint("Equal", 3, 7))
sketch6.addConstraint(Sketcher.Constraint("DistanceY", 1, 2, 1, 1, Q("5 mm")))
sketch6.addConstraint(Sketcher.Constraint("Distance", 9, Q("2 mm")))
sketch6.addConstraint(Sketcher.Constraint("DistanceX", 2, 1, 2, 2, Q("1.5 mm")))
sketch6.addConstraint(Sketcher.Constraint("DistanceX", 14, 1, 12, 2, Q("2 mm")))
sketch6.addConstraint(Sketcher.Constraint("Radius", 11, Q("2.011381 mm")))
sketch6.addConstraint(Sketcher.Constraint("Radius", 14, Q("3.501096 mm")))
sketch6.addConstraint(Sketcher.Constraint("Radius", 16, Q("5.009135 mm")))
sketch6.addConstraint(Sketcher.Constraint("Radius", 18, Q("2.634323 mm")))
sketch6.addConstraint(Sketcher.Constraint("Radius", 21, Q("4.533872 mm")))
sketch6.addConstraint(Sketcher.Constraint("DistanceX", 16, 3, 16, 1, Q("2.126999 mm")))
sketch6.addConstraint(Sketcher.Constraint("DistanceY", 12, 1, 12, 2, Q("11.841258 mm")))
sketch6.addConstraint(Sketcher.Constraint("DistanceY", 19, 1, 19, 2, Q("16.26006 mm")))
sketch6.addConstraint(Sketcher.Constraint("DistanceY", 7, 2, -1, 1, Q("24.237699 mm")))
sketch6.addConstraint(Sketcher.Constraint("DistanceY", 9, 2, -1, 1, Q("21.6462 mm")))
sketch6.addConstraint(Sketcher.Constraint("DistanceY", 16, 1, -1, 1, Q("24.296601 mm")))
sketch6.addConstraint(Sketcher.Constraint("DistanceX", 18, 1, -1, 1, Q("10.378502 mm")))
sketch6.addConstraint(Sketcher.Constraint("DistanceY", 11, 3, 21, 3, Q("11.420502 mm")))
sketch6.addConstraint(Sketcher.Constraint("DistanceY", 11, 3, 12, 2, Q("11.788699 mm")))
sketch6.addConstraint(Sketcher.Constraint("DistanceX", 21, 3, 19, 2, Q("6.537401 mm")))
sketch6.addConstraint(Sketcher.Constraint("DistanceY", 22, 2, 3, 2, Q("0.8789 mm")))
sketch6.addConstraint(Sketcher.Constraint("Distance", 0, Q("4.004992 mm")))
sketch6.addConstraint(Sketcher.Constraint("Distance", 8, Q("3.877991 mm")))
sketch6.addConstraint(Sketcher.Constraint("Distance", 10, Q("10.150092 mm")))
sketch6.addConstraint(Sketcher.Constraint("Distance", 20, Q("3.627321 mm")))
sketch6.addConstraint(Sketcher.Constraint("DistanceY", 15, 2, 15, 1, Q("10.580243 mm")))
sketch6.addConstraint(Sketcher.Constraint("DistanceY", 22, 2, 22, 1, Q("19.259424 mm")))
sketch6.addConstraint(Sketcher.Constraint("DistanceX", 14, 3, -1, 1, Q("0.665191 mm")))
sketch6.addConstraint(Sketcher.Constraint("DistanceY", 14, 3, -1, 1, Q("12.02574 mm")))
sketch6.addConstraint(Sketcher.Constraint("DistanceX", 16, 3, -1, 1, Q("1.709969 mm")))
sketch6.addConstraint(Sketcher.Constraint("DistanceX", 0, 2, -1, 1, Q("8.481738 mm")))
sketch6.addConstraint(Sketcher.Constraint("DistanceY", 13, 2, -1, 1, Q("8.788371 mm")))
sketch6.addConstraint(Sketcher.Constraint("DistanceX", 17, 2, -1, 1, Q("7.469758 mm")))
sketch6.setExpression("Constraints[42]", "Params.sketch6_height")
sketch6.setExpression("Constraints[43]", "Params.sketch6_length")
sketch6.setExpression("Constraints[44]", "Params.sketch6_width")
pad6 = doc.addObject("PartDesign::Pad", "Pad005")
body.addObject(pad6)
pad6.Profile = sketch6
pad6.setExpression("Length", "Params.pad6_length")
pad6.Reversed = True

doc.recompute()
